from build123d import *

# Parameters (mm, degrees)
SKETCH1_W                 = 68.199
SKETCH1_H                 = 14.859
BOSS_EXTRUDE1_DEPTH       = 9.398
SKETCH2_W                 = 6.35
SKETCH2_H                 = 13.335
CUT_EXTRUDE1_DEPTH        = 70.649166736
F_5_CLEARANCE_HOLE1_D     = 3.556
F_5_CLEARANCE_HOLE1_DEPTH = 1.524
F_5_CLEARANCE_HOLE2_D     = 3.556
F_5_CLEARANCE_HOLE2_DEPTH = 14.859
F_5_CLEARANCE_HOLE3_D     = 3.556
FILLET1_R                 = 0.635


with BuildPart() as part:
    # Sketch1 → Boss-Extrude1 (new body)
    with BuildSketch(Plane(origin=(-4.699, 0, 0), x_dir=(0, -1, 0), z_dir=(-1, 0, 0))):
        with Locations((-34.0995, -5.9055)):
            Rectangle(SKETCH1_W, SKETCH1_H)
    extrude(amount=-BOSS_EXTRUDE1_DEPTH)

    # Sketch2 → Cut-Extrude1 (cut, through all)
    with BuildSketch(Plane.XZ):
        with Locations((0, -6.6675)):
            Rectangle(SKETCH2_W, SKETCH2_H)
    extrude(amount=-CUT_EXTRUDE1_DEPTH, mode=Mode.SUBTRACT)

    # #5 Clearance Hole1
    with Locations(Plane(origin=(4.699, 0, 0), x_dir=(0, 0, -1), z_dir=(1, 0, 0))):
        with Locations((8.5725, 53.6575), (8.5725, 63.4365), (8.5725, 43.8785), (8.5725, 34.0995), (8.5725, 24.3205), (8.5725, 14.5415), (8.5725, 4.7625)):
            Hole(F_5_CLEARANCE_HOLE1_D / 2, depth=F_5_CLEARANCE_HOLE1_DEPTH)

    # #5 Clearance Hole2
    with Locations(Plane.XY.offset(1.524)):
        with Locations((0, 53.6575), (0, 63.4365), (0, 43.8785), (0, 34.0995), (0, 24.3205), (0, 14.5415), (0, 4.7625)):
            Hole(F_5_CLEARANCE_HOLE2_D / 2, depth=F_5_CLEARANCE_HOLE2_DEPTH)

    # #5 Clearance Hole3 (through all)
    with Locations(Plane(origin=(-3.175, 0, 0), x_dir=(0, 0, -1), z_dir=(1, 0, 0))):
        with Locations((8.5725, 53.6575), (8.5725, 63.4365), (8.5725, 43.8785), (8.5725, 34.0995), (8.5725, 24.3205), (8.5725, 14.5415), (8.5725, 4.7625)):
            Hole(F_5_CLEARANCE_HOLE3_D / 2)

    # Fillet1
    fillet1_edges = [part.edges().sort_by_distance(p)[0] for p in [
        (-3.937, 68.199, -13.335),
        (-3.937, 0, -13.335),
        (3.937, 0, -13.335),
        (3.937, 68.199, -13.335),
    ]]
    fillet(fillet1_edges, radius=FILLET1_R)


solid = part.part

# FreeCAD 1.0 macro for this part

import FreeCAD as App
import Part
import Sketcher

V = App.Vector
Q = App.Units.Quantity


def edges_at(feature, points):
    """Names of the edges that pass closest to the given points."""
    edges = feature.Shape.Edges
    near = lambda p: min(range(len(edges)), key=lambda i: edges[i].distToShape(Part.Vertex(*p))[0])
    return sorted({f"Edge{near(p) + 1}" for p in points})

doc = App.newDocument("Part")
body = doc.addObject("PartDesign::Body", "Body")

# Sketch on YZ plane
sketch1 = body.newObject("Sketcher::SketchObject", "Sketch")
sketch1.AttachmentSupport = (doc.getObject("YZ_Plane"), [""])
sketch1.MapMode = "FlatFace"
sketch1.AttachmentOffset = App.Placement(V(0, 0, -0.185 * 25.4), App.Rotation())
sketch1.addGeometry([
    Part.LineSegment(V(68.199, 1.524, 0), V(68.199, -13.335, 0)),
    Part.LineSegment(V(68.199, -13.335, 0), V(0, -13.335, 0)),
    Part.LineSegment(V(0, -13.335, 0), V(0, 1.524, 0)),
    Part.LineSegment(V(0, 1.524, 0), V(68.199, 1.524, 0)),
], False)
sketch1.addConstraint([
    Sketcher.Constraint("Coincident", 0, 2, 1, 1),
    Sketcher.Constraint("Coincident", 1, 2, 2, 1),
    Sketcher.Constraint("Coincident", 2, 2, 3, 1),
    Sketcher.Constraint("Coincident", 3, 2, 0, 1),
    Sketcher.Constraint("Vertical", 0),
    Sketcher.Constraint("Horizontal", 1),
    Sketcher.Constraint("Vertical", 2),
    Sketcher.Constraint("Horizontal", 3),
    Sketcher.Constraint("PointOnObject", 1, 2, -2),
    Sketcher.Constraint("DistanceX", 1, 2, 1, 1, Q("2.685 in")),
    Sketcher.Constraint("DistanceY", 0, 2, 0, 1, Q("0.585 in")),
    Sketcher.Constraint("DistanceY", -1, 1, 2, 2, Q("0.06 in")),
])
pad1 = body.newObject("PartDesign::Pad", "Pad")
pad1.Profile = sketch1
pad1.Length = Q("0.37 in")

# Sketch on XZ plane
sketch2 = body.newObject("Sketcher::SketchObject", "Sketch001")
sketch2.AttachmentSupport = (doc.getObject("XZ_Plane"), [""])
sketch2.MapMode = "FlatFace"
sketch2.addGeometry([
    Part.LineSegment(V(-3.175, 0, 0), V(-3.175, -13.335, 0)),
    Part.LineSegment(V(-3.175, -13.335, 0), V(3.175, -13.335, 0)),
    Part.LineSegment(V(3.175, -13.335, 0), V(3.175, 0, 0)),
    Part.LineSegment(V(3.175, 0, 0), V(-3.175, 0, 0)),
], False)
sketch2.addConstraint([
    Sketcher.Constraint("Coincident", 0, 2, 1, 1),
    Sketcher.Constraint("Coincident", 1, 2, 2, 1),
    Sketcher.Constraint("Coincident", 2, 2, 3, 1),
    Sketcher.Constraint("Coincident", 3, 2, 0, 1),
    Sketcher.Constraint("Vertical", 0),
    Sketcher.Constraint("Horizontal", 1),
    Sketcher.Constraint("Vertical", 2),
    Sketcher.Constraint("Horizontal", 3),
    Sketcher.Constraint("Symmetric", 2, 2, 3, 2, -1, 1),
    Sketcher.Constraint("DistanceX", 1, 1, 1, 2, Q("0.25 in")),
    Sketcher.Constraint("DistanceY", 0, 2, 0, 1, Q("0.525 in")),
])
pocket1 = body.newObject("PartDesign::Pocket", "Pocket")
pocket1.Profile = sketch2
pocket1.Type = "ThroughAll"

# Sketch on YZ plane
sketch3 = body.newObject("Sketcher::SketchObject", "Sketch002")
sketch3.AttachmentSupport = (doc.getObject("YZ_Plane"), [""])
sketch3.MapMode = "FlatFace"
sketch3.AttachmentOffset = App.Placement(V(0, 0, 0.185 * 25.4), App.Rotation())
sketch3.addGeometry([
    Part.Circle(V(53.6575, -8.5725, 0), V(0, 0, 1), 1.778),  # 0
    Part.Circle(V(63.4365, -8.5725, 0), V(0, 0, 1), 1.778),  # 1
    Part.Circle(V(43.8785, -8.5725, 0), V(0, 0, 1), 1.778),  # 2
    Part.Circle(V(34.0995, -8.5725, 0), V(0, 0, 1), 1.778),  # 3
    Part.Circle(V(24.3205, -8.5725, 0), V(0, 0, 1), 1.778),  # 4
    Part.Circle(V(14.5415, -8.5725, 0), V(0, 0, 1), 1.778),  # 5
    Part.Circle(V(4.7625, -8.5725, 0), V(0, 0, 1), 1.778),  # 6
], False)
sketch3.addConstraint([
    Sketcher.Constraint("Equal", 0, 1),
    Sketcher.Constraint("Equal", 1, 2),
    Sketcher.Constraint("Equal", 2, 3),
    Sketcher.Constraint("Equal", 3, 4),
    Sketcher.Constraint("Equal", 4, 5),
    Sketcher.Constraint("Equal", 5, 6),
    Sketcher.Constraint("Horizontal", 0, 3, 1, 3),
    Sketcher.Constraint("Horizontal", 1, 3, 2, 3),
    Sketcher.Constraint("Horizontal", 2, 3, 3, 3),
    Sketcher.Constraint("Horizontal", 3, 3, 4, 3),
    Sketcher.Constraint("Horizontal", 4, 3, 5, 3),
    Sketcher.Constraint("Horizontal", 5, 3, 6, 3),
    Sketcher.Constraint("Diameter", 0, Q("0.14 in")),
    Sketcher.Constraint("DistanceX", 2, 3, 1, 3, Q("0.77 in")),
    Sketcher.Constraint("DistanceX", 3, 3, 0, 3, Q("0.77 in")),
    Sketcher.Constraint("DistanceX", 4, 3, 2, 3, Q("0.77 in")),
    Sketcher.Constraint("DistanceX", 5, 3, 3, 3, Q("0.77 in")),
    Sketcher.Constraint("DistanceX", 6, 3, 4, 3, Q("0.77 in")),
    Sketcher.Constraint("DistanceX", -1, 1, 6, 3, Q("0.1875 in")),
    Sketcher.Constraint("DistanceX", 0, 3, 1, 3, Q("0.385 in")),
    Sketcher.Constraint("DistanceY", 0, 3, -1, 1, Q("0.3375 in")),
])
doc.recompute()
hole = body.newObject("PartDesign::Hole", "Hole")
hole.Profile = sketch3
hole.ThreadType = "None"
hole.Diameter = Q("0.14 in")
hole.DepthType = "Dimension"
hole.Depth = Q("0.06 in")
hole.DrillPoint = "Flat"

# Sketch on XY plane
sketch4 = body.newObject("Sketcher::SketchObject", "Sketch003")
sketch4.AttachmentSupport = (doc.getObject("XY_Plane"), [""])
sketch4.MapMode = "FlatFace"
sketch4.AttachmentOffset = App.Placement(V(0, 0, 0.06 * 25.4), App.Rotation())
sketch4.addGeometry([
    Part.Circle(V(0, 53.6575, 0), V(0, 0, 1), 1.778),  # 0
    Part.Circle(V(0, 63.4365, 0), V(0, 0, 1), 1.778),  # 1
    Part.Circle(V(0, 43.8785, 0), V(0, 0, 1), 1.778),  # 2
    Part.Circle(V(0, 34.0995, 0), V(0, 0, 1), 1.778),  # 3
    Part.Circle(V(0, 24.3205, 0), V(0, 0, 1), 1.778),  # 4
    Part.Circle(V(0, 14.5415, 0), V(0, 0, 1), 1.778),  # 5
    Part.Circle(V(0, 4.7625, 0), V(0, 0, 1), 1.778),  # 6
], False)
sketch4.addConstraint([
    Sketcher.Constraint("Equal", 0, 1),
    Sketcher.Constraint("Equal", 1, 2),
    Sketcher.Constraint("Equal", 2, 3),
    Sketcher.Constraint("Equal", 3, 4),
    Sketcher.Constraint("Equal", 4, 5),
    Sketcher.Constraint("Equal", 5, 6),
    Sketcher.Constraint("PointOnObject", 0, 3, -2),
    Sketcher.Constraint("PointOnObject", 1, 3, -2),
    Sketcher.Constraint("PointOnObject", 2, 3, -2),
    Sketcher.Constraint("PointOnObject", 3, 3, -2),
    Sketcher.Constraint("PointOnObject", 4, 3, -2),
    Sketcher.Constraint("PointOnObject", 5, 3, -2),
    Sketcher.Constraint("PointOnObject", 6, 3, -2),
    Sketcher.Constraint("Diameter", 0, Q("0.14 in")),
    Sketcher.Constraint("DistanceY", 2, 3, 1, 3, Q("0.77 in")),
    Sketcher.Constraint("DistanceY", 3, 3, 0, 3, Q("0.77 in")),
    Sketcher.Constraint("DistanceY", 4, 3, 2, 3, Q("0.77 in")),
    Sketcher.Constraint("DistanceY", 5, 3, 3, 3, Q("0.77 in")),
    Sketcher.Constraint("DistanceY", 6, 3, 4, 3, Q("0.77 in")),
    Sketcher.Constraint("DistanceY", -1, 1, 6, 3, Q("0.1875 in")),
    Sketcher.Constraint("DistanceY", 0, 3, 1, 3, Q("0.385 in")),
])
doc.recompute()
hole2 = body.newObject("PartDesign::Hole", "Hole001")
hole2.Profile = sketch4
hole2.ThreadType = "None"
hole2.Diameter = Q("0.14 in")
hole2.DepthType = "Dimension"
hole2.Depth = Q("0.585 in")
hole2.DrillPoint = "Flat"

# Sketch on YZ plane
sketch5 = body.newObject("Sketcher::SketchObject", "Sketch004")
sketch5.AttachmentSupport = (doc.getObject("YZ_Plane"), [""])
sketch5.MapMode = "FlatFace"
sketch5.AttachmentOffset = App.Placement(V(0, 0, -0.125 * 25.4), App.Rotation())
sketch5.addGeometry([
    Part.Circle(V(53.6575, -8.5725, 0), V(0, 0, 1), 1.778),  # 0
    Part.Circle(V(63.4365, -8.5725, 0), V(0, 0, 1), 1.778),  # 1
    Part.Circle(V(43.8785, -8.5725, 0), V(0, 0, 1), 1.778),  # 2
    Part.Circle(V(34.0995, -8.5725, 0), V(0, 0, 1), 1.778),  # 3
    Part.Circle(V(24.3205, -8.5725, 0), V(0, 0, 1), 1.778),  # 4
    Part.Circle(V(14.5415, -8.5725, 0), V(0, 0, 1), 1.778),  # 5
    Part.Circle(V(4.7625, -8.5725, 0), V(0, 0, 1), 1.778),  # 6
], False)
sketch5.addConstraint([
    Sketcher.Constraint("Equal", 0, 1),
    Sketcher.Constraint("Equal", 1, 2),
    Sketcher.Constraint("Equal", 2, 3),
    Sketcher.Constraint("Equal", 3, 4),
    Sketcher.Constraint("Equal", 4, 5),
    Sketcher.Constraint("Equal", 5, 6),
    Sketcher.Constraint("Horizontal", 0, 3, 1, 3),
    Sketcher.Constraint("Horizontal", 1, 3, 2, 3),
    Sketcher.Constraint("Horizontal", 2, 3, 3, 3),
    Sketcher.Constraint("Horizontal", 3, 3, 4, 3),
    Sketcher.Constraint("Horizontal", 4, 3, 5, 3),
    Sketcher.Constraint("Horizontal", 5, 3, 6, 3),
    Sketcher.Constraint("Diameter", 0, Q("0.14 in")),
    Sketcher.Constraint("DistanceX", 2, 3, 1, 3, Q("0.77 in")),
    Sketcher.Constraint("DistanceX", 3, 3, 0, 3, Q("0.77 in")),
    Sketcher.Constraint("DistanceX", 4, 3, 2, 3, Q("0.77 in")),
    Sketcher.Constraint("DistanceX", 5, 3, 3, 3, Q("0.77 in")),
    Sketcher.Constraint("DistanceX", 6, 3, 4, 3, Q("0.77 in")),
    Sketcher.Constraint("DistanceX", -1, 1, 6, 3, Q("0.1875 in")),
    Sketcher.Constraint("DistanceX", 0, 3, 1, 3, Q("0.385 in")),
    Sketcher.Constraint("DistanceY", 0, 3, -1, 1, Q("0.3375 in")),
])
doc.recompute()
hole3 = body.newObject("PartDesign::Hole", "Hole002")
hole3.Profile = sketch5
hole3.ThreadType = "None"
hole3.Diameter = Q("0.14 in")
hole3.DepthType = "ThroughAll"
doc.recompute()

fillet = body.newObject("PartDesign::Fillet", "Fillet")
fillet.Base = (hole3, edges_at(hole3, [
    (-3.937, 68.199, -13.335),
    (-3.937, 0, -13.335),
    (3.937, 0, -13.335),
    (3.937, 68.199, -13.335),
]))
fillet.Radius = Q("0.025 in")

doc.recompute()
